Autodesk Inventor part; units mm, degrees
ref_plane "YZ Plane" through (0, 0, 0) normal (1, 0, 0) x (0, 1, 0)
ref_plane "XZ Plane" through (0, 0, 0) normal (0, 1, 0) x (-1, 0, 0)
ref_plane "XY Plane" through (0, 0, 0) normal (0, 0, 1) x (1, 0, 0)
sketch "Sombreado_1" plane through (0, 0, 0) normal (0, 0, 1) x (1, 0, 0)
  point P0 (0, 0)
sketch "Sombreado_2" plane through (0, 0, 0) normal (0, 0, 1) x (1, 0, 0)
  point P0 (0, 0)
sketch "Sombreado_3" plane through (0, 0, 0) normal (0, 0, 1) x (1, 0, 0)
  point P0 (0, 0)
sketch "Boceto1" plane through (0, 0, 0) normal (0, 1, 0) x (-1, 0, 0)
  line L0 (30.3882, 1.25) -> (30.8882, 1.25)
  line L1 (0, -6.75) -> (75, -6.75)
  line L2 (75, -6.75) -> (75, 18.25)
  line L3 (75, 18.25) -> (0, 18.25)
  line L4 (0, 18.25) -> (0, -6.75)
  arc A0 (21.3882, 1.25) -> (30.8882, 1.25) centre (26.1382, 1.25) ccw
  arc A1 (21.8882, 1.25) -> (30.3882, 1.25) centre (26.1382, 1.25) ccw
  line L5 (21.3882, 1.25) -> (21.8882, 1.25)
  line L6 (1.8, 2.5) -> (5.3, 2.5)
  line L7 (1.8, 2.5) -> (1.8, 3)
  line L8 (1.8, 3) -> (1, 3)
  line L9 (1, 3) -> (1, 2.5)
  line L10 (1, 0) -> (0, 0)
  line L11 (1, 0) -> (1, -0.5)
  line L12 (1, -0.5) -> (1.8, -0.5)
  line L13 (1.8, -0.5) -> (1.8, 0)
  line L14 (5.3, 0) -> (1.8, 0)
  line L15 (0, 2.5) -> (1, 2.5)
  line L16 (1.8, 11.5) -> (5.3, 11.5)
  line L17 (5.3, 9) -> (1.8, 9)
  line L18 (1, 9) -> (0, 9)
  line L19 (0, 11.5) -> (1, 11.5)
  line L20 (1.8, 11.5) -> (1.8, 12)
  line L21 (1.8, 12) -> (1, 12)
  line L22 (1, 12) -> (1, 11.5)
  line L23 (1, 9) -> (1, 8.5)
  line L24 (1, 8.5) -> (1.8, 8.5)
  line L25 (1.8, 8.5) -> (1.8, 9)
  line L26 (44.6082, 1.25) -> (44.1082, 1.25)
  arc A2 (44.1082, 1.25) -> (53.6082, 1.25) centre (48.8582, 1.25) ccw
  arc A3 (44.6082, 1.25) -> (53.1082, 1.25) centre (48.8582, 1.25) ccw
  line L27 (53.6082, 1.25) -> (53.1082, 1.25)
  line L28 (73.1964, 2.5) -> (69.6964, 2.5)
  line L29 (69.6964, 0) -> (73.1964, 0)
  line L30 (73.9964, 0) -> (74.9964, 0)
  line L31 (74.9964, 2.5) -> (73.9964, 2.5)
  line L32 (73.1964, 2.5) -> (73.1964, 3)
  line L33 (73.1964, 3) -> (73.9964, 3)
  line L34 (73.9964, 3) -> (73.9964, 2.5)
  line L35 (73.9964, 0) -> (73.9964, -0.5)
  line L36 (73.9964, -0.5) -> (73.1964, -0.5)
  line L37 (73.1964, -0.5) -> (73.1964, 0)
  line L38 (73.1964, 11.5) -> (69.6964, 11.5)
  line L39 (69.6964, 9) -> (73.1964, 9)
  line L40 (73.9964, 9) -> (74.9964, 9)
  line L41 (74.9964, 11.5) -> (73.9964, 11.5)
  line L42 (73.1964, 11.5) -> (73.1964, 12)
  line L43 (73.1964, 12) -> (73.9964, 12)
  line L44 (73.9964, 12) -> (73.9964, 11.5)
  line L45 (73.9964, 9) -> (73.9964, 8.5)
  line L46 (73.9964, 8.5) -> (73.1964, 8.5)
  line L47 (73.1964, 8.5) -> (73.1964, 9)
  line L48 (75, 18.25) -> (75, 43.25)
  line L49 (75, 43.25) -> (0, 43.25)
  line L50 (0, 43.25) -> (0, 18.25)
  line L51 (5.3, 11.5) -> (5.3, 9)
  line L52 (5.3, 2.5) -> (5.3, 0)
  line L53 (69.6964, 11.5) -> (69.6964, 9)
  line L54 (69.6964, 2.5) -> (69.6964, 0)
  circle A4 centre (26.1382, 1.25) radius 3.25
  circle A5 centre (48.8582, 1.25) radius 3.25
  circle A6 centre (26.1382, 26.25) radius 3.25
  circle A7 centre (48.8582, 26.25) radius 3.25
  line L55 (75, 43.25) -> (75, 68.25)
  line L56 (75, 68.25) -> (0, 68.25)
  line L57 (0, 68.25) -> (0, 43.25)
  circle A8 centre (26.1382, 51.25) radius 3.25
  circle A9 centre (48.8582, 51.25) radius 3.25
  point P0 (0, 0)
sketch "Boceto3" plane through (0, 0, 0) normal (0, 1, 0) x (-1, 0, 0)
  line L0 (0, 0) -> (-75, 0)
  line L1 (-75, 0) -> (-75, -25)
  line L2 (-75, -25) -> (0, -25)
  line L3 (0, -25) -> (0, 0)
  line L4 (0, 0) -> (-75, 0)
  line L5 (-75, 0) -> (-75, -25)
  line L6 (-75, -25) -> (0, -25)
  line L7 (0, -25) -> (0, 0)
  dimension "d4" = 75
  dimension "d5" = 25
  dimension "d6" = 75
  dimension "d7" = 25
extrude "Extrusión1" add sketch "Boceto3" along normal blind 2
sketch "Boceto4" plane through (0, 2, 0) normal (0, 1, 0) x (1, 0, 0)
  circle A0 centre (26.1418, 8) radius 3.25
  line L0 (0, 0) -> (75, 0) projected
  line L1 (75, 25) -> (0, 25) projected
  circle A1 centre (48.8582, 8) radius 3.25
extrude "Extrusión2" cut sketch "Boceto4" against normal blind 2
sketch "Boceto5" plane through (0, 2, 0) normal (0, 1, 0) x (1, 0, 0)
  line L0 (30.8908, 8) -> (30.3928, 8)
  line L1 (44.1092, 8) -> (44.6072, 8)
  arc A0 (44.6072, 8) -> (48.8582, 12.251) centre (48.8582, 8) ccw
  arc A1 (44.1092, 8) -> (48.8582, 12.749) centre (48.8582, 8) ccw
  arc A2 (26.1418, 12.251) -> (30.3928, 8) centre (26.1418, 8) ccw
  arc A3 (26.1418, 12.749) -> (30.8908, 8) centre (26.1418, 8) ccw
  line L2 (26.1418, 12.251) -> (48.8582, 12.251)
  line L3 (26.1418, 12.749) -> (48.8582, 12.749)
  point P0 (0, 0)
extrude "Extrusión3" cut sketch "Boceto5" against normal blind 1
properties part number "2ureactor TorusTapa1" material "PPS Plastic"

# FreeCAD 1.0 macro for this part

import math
import FreeCAD as App
import Part
import Sketcher
Q = App.Units.Quantity

doc = App.newDocument("Part")
body = doc.addObject("PartDesign::Body", "Body")

# Sketch on XZ plane
sketch1 = body.newObject("Sketcher::SketchObject", "Sketch")
sketch1.AttachmentSupport = (doc.getObject("XZ_Plane"), [""])
sketch1.MapMode = "FlatFace"
sketch1.addGeometry(Part.LineSegment(App.Vector(0, -25, 0), App.Vector(0, 0, 0)), False)
sketch1.addGeometry(Part.LineSegment(App.Vector(0, 0, 0), App.Vector(75, 0, 0)), False)
sketch1.addGeometry(Part.LineSegment(App.Vector(75, 0, 0), App.Vector(75, -25, 0)), False)
sketch1.addGeometry(Part.LineSegment(App.Vector(75, -25, 0), App.Vector(0, -25, 0)), False)
sketch1.addConstraint(Sketcher.Constraint("Coincident", 0, 2, 1, 1))
sketch1.addConstraint(Sketcher.Constraint("Coincident", 1, 2, 2, 1))
sketch1.addConstraint(Sketcher.Constraint("Coincident", 2, 2, 3, 1))
sketch1.addConstraint(Sketcher.Constraint("Coincident", 3, 2, 0, 1))
sketch1.addConstraint(Sketcher.Constraint("Vertical", 0))
sketch1.addConstraint(Sketcher.Constraint("Horizontal", 1))
sketch1.addConstraint(Sketcher.Constraint("Vertical", 2))
sketch1.addConstraint(Sketcher.Constraint("Horizontal", 3))
sketch1.addConstraint(Sketcher.Constraint("Coincident", 0, 2, -1, 1))
sketch1.addConstraint(Sketcher.Constraint("DistanceX", 1, 1, 1, 2, Q("75 mm")))
sketch1.addConstraint(Sketcher.Constraint("DistanceY", 0, 1, 0, 2, Q("25 mm")))
pad1 = body.newObject("PartDesign::Pad", "Pad")
pad1.Profile = sketch1
pad1.Length = 2
pad1.Reversed = True

# Sketch on XZ plane
sketch2 = body.newObject("Sketcher::SketchObject", "Sketch001")
sketch2.AttachmentSupport = (doc.getObject("XZ_Plane"), [""])
sketch2.MapMode = "FlatFace"
sketch2.AttachmentOffset = App.Placement(App.Vector(0, 0, -2), App.Rotation())
sketch2.addGeometry(Part.Circle(App.Vector(26.1, -8, 0), App.Vector(0, 0, 1), 3.2), False)
sketch2.addGeometry(Part.Circle(App.Vector(48.9, -8, 0), App.Vector(0, 0, 1), 3.2), False)
sketch2.addConstraint(Sketcher.Constraint("Equal", 0, 1))
sketch2.addConstraint(Sketcher.Constraint("Horizontal", 0, 3, 1, 3))
sketch2.addConstraint(Sketcher.Constraint("Diameter", 0, Q("6.5 mm")))
sketch2.addConstraint(Sketcher.Constraint("DistanceY", 0, 3, -1, 1, Q("8 mm")))
sketch2.addConstraint(Sketcher.Constraint("DistanceX", -1, 1, 0, 3, Q("26.1418 mm")))
sketch2.addConstraint(Sketcher.Constraint("DistanceX", -1, 1, 1, 3, Q("48.8582 mm")))
pocket1 = body.newObject("PartDesign::Pocket", "Pocket")
pocket1.Profile = sketch2
pocket1.Length = 2
pocket1.Reversed = True

# Sketch on XZ plane
sketch3 = body.newObject("Sketcher::SketchObject", "Sketch002")
sketch3.AttachmentSupport = (doc.getObject("XZ_Plane"), [""])
sketch3.MapMode = "FlatFace"
sketch3.AttachmentOffset = App.Placement(App.Vector(0, 0, -2), App.Rotation())
sketch3.addGeometry(Part.ArcOfCircle(Part.Circle(App.Vector(26.14, -8, 0), App.Vector(0, 0, 1), 4.75), math.radians(0), math.radians(270)), False)
sketch3.addGeometry(Part.LineSegment(App.Vector(30.89, -8, 0), App.Vector(30.39, -8, 0)), False)
sketch3.addGeometry(Part.ArcOfCircle(Part.Circle(App.Vector(26.14, -8, 0), App.Vector(0, 0, 1), 4.25), math.radians(0), math.radians(270)), False)
sketch3.addGeometry(Part.LineSegment(App.Vector(26.14, -12.25, 0), App.Vector(48.86, -12.25, 0)), False)
sketch3.addGeometry(Part.ArcOfCircle(Part.Circle(App.Vector(48.86, -8, 0), App.Vector(0, 0, 1), 4.25), math.radians(-90), math.radians(180)), False)
sketch3.addGeometry(Part.LineSegment(App.Vector(44.61, -8, 0), App.Vector(44.11, -8, 0)), False)
sketch3.addGeometry(Part.ArcOfCircle(Part.Circle(App.Vector(48.86, -8, 0), App.Vector(0, 0, 1), 4.75), math.radians(-90), math.radians(180)), False)
sketch3.addGeometry(Part.LineSegment(App.Vector(48.86, -12.75, 0), App.Vector(26.14, -12.75, 0)), False)
sketch3.addConstraint(Sketcher.Constraint("Coincident", 0, 1, 1, 1))
sketch3.addConstraint(Sketcher.Constraint("Coincident", 1, 2, 2, 1))
sketch3.addConstraint(Sketcher.Constraint("Tangent", 2, 2, 3, 1))
sketch3.addConstraint(Sketcher.Constraint("Tangent", 3, 2, 4, 1))
sketch3.addConstraint(Sketcher.Constraint("Coincident", 4, 2, 5, 1))
sketch3.addConstraint(Sketcher.Constraint("Coincident", 5, 2, 6, 2))
sketch3.addConstraint(Sketcher.Constraint("Tangent", 6, 1, 7, 1))
sketch3.addConstraint(Sketcher.Constraint("Tangent", 7, 2, 0, 2))
sketch3.addConstraint(Sketcher.Constraint("Horizontal", 1))
sketch3.addConstraint(Sketcher.Constraint("Horizontal", 3))
sketch3.addConstraint(Sketcher.Constraint("Horizontal", 5))
sketch3.addConstraint(Sketcher.Constraint("Horizontal", 7))
sketch3.addConstraint(Sketcher.Constraint("Coincident", 2, 3, 0, 3))
sketch3.addConstraint(Sketcher.Constraint("Coincident", 6, 3, 4, 3))
sketch3.addConstraint(Sketcher.Constraint("Equal", 2, 4))
sketch3.addConstraint(Sketcher.Constraint("Horizontal", 6, 3, 0, 1))
sketch3.addConstraint(Sketcher.Constraint("Horizontal", 1, 2, 4, 2))
sketch3.addConstraint(Sketcher.Constraint("DistanceY", 0, 3, -1, 1, Q("8 mm")))
sketch3.addConstraint(Sketcher.Constraint("Radius", 0, Q("4.749 mm")))
sketch3.addConstraint(Sketcher.Constraint("Radius", 2, Q("4.251 mm")))
sketch3.addConstraint(Sketcher.Constraint("DistanceX", 3, 1, 3, 2, Q("22.7164 mm")))
sketch3.addConstraint(Sketcher.Constraint("DistanceX", -1, 1, 0, 3, Q("26.1418 mm")))
pocket2 = body.newObject("PartDesign::Pocket", "Pocket001")
pocket2.Profile = sketch3
pocket2.Length = 1
pocket2.Reversed = True

doc.recompute()
